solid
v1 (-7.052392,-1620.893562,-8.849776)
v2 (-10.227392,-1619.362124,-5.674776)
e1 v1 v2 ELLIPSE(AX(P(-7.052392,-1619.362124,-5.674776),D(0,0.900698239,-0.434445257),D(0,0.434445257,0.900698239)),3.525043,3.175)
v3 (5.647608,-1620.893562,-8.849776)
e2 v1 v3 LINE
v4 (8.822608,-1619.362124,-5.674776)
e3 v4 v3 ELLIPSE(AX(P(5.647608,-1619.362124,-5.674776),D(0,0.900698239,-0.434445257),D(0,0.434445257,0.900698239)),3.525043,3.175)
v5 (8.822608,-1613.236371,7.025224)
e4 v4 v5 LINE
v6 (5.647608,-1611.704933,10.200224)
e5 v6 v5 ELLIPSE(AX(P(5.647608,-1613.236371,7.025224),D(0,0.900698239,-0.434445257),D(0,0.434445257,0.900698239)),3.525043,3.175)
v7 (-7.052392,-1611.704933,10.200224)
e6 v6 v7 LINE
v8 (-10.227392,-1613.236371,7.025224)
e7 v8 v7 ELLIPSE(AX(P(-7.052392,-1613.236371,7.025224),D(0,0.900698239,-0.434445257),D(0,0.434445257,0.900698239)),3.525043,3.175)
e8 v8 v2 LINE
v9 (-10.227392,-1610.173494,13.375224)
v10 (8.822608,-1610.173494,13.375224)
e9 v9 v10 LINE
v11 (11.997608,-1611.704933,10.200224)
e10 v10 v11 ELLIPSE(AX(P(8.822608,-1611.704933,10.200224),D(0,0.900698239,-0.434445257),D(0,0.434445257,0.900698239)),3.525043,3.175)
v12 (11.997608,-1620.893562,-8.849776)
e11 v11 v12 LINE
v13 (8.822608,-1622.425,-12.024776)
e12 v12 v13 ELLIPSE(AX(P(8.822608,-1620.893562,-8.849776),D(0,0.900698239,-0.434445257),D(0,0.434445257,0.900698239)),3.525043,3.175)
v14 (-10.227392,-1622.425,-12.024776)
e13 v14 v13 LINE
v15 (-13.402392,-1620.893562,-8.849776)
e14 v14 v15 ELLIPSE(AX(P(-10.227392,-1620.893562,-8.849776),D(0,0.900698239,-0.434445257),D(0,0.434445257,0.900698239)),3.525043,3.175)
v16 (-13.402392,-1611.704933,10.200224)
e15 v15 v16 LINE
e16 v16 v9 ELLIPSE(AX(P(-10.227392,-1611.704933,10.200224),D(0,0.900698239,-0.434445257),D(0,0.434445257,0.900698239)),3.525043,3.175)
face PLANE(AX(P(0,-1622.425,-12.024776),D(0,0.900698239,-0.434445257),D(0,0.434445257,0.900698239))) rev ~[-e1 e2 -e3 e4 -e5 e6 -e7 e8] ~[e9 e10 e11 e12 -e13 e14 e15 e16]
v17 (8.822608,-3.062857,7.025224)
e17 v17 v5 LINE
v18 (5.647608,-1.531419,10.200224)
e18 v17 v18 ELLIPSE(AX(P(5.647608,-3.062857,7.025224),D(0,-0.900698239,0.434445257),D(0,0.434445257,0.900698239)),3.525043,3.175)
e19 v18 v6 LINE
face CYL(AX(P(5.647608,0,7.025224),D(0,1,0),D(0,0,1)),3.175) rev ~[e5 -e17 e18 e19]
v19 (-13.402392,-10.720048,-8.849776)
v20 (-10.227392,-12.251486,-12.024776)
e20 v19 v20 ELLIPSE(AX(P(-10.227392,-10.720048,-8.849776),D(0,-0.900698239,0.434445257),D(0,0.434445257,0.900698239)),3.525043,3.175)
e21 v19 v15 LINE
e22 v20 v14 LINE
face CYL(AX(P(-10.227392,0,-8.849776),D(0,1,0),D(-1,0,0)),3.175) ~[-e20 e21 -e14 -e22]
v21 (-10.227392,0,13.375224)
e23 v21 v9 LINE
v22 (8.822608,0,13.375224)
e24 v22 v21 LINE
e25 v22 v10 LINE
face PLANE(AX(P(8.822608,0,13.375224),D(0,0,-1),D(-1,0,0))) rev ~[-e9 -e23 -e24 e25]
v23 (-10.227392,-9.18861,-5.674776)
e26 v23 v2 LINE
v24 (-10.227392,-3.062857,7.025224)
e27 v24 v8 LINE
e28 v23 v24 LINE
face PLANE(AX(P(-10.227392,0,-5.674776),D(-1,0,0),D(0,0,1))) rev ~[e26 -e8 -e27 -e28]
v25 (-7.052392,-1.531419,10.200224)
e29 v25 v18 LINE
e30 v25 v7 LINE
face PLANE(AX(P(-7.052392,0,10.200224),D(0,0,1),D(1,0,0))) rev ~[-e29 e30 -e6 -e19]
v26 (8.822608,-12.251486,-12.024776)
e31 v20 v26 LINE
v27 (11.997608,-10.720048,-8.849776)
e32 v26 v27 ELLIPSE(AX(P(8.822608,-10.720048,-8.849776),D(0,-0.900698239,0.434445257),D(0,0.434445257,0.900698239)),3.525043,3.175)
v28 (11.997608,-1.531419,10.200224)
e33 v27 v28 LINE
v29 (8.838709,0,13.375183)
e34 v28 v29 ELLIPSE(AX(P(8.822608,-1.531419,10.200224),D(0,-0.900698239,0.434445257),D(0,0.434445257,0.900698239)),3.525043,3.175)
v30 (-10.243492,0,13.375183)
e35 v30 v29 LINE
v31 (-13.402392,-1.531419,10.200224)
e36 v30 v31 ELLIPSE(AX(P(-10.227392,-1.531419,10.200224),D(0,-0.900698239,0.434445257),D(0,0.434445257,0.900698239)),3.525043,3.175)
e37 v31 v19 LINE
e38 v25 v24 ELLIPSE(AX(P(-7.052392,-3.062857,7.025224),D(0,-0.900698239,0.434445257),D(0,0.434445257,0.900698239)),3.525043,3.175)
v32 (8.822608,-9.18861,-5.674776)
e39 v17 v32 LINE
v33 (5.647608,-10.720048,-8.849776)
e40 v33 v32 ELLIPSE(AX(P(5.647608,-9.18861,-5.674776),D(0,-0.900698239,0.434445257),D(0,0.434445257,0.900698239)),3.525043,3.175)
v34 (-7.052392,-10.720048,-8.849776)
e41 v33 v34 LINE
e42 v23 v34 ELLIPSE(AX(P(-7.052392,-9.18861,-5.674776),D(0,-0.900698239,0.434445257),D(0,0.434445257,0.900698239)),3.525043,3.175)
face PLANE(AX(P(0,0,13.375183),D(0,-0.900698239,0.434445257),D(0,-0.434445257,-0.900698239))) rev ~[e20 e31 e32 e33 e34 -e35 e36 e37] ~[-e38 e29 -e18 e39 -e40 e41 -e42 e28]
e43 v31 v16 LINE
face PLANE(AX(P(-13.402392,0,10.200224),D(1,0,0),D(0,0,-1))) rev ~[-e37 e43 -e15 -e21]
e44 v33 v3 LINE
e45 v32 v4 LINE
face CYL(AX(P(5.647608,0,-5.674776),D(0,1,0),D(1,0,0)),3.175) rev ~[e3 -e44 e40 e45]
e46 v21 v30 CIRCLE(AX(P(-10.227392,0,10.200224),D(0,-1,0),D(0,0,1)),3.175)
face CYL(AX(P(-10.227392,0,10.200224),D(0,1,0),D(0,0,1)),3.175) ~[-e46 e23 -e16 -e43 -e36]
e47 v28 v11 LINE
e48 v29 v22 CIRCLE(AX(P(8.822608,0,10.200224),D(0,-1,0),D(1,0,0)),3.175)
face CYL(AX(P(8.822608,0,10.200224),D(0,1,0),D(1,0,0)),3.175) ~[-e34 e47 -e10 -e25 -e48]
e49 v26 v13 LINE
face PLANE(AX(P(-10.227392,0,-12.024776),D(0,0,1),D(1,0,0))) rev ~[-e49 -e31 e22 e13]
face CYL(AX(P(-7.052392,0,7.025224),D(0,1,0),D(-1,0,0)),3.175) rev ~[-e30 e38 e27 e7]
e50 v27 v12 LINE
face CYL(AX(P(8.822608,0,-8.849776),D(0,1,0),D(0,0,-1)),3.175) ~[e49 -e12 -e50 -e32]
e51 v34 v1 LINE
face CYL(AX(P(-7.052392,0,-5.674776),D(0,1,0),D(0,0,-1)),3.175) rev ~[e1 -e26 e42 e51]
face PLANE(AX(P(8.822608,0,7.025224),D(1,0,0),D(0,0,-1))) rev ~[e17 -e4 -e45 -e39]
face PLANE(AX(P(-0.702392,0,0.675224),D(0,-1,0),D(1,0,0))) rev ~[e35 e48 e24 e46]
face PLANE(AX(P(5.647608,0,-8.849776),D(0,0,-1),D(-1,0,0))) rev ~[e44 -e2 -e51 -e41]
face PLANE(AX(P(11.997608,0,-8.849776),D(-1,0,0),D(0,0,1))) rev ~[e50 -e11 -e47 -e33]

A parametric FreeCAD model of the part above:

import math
import FreeCAD as App
import Part
import Sketcher
from FreeCAD import Vector
Q = App.Units.Quantity

doc = App.newDocument("Part")
body = doc.addObject("PartDesign::Body", "Body")

# Sketch on XZ plane
sketch1 = body.newObject("Sketcher::SketchObject", "Sketch")
sketch1.AttachmentSupport = (doc.getObject("XZ_Plane"), [""])
sketch1.MapMode = "FlatFace"
sketch1.addGeometry([
    Part.LineSegment(Vector(-10.2, -12, 0), Vector(8.8, -12, 0)),  # 0
    Part.ArcOfCircle(Part.Circle(Vector(8.8, -8.8, 0), Vector(0, 0, 1), 3.2), math.radians(-90), math.radians(0)),  # 1
    Part.LineSegment(Vector(12, -8.8, 0), Vector(12, 10.2, 0)),  # 2
    Part.ArcOfCircle(Part.Circle(Vector(8.8, 10.2, 0), Vector(0, 0, 1), 3.2), math.radians(0), math.radians(90)),  # 3
    Part.LineSegment(Vector(8.8, 13.4, 0), Vector(-10.2, 13.4, 0)),  # 4
    Part.ArcOfCircle(Part.Circle(Vector(-10.2, 10.2, 0), Vector(0, 0, 1), 3.2), math.radians(90), math.radians(180)),  # 5
    Part.LineSegment(Vector(-13.4, 10.2, 0), Vector(-13.4, -8.8, 0)),  # 6
    Part.ArcOfCircle(Part.Circle(Vector(-10.2, -8.8, 0), Vector(0, 0, 1), 3.2), math.radians(180), math.radians(270)),  # 7
    Part.LineSegment(Vector(8.8, 7, 0), Vector(8.8, -5.7, 0)),  # 8
    Part.ArcOfCircle(Part.Circle(Vector(5.6, -5.7, 0), Vector(0, 0, 1), 3.2), math.radians(-90), math.radians(0)),  # 9
    Part.LineSegment(Vector(5.6, -8.8, 0), Vector(-7.1, -8.8, 0)),  # 10
    Part.ArcOfCircle(Part.Circle(Vector(-7.1, -5.7, 0), Vector(0, 0, 1), 3.2), math.radians(180), math.radians(270)),  # 11
    Part.LineSegment(Vector(-10.2, -5.7, 0), Vector(-10.2, 7, 0)),  # 12
    Part.ArcOfCircle(Part.Circle(Vector(-7.1, 7, 0), Vector(0, 0, 1), 3.2), math.radians(90), math.radians(180)),  # 13
    Part.LineSegment(Vector(-7.1, 10.2, 0), Vector(5.6, 10.2, 0)),  # 14
    Part.ArcOfCircle(Part.Circle(Vector(5.6, 7, 0), Vector(0, 0, 1), 3.2), math.radians(0), math.radians(90)),  # 15
], False)
sketch1.addConstraint([
    Sketcher.Constraint("Tangent", 0, 2, 1, 1),
    Sketcher.Constraint("Tangent", 1, 2, 2, 1),
    Sketcher.Constraint("Tangent", 2, 2, 3, 1),
    Sketcher.Constraint("Tangent", 3, 2, 4, 1),
    Sketcher.Constraint("Tangent", 4, 2, 5, 1),
    Sketcher.Constraint("Tangent", 5, 2, 6, 1),
    Sketcher.Constraint("Tangent", 6, 2, 7, 1),
    Sketcher.Constraint("Tangent", 7, 2, 0, 1),
    Sketcher.Constraint("Tangent", 8, 2, 9, 2),
    Sketcher.Constraint("Tangent", 9, 1, 10, 1),
    Sketcher.Constraint("Tangent", 10, 2, 11, 2),
    Sketcher.Constraint("Tangent", 11, 1, 12, 1),
    Sketcher.Constraint("Tangent", 12, 2, 13, 2),
    Sketcher.Constraint("Tangent", 13, 1, 14, 1),
    Sketcher.Constraint("Tangent", 14, 2, 15, 2),
    Sketcher.Constraint("Tangent", 15, 1, 8, 1),
    Sketcher.Constraint("Horizontal", 0),
    Sketcher.Constraint("Vertical", 2),
    Sketcher.Constraint("Horizontal", 4),
    Sketcher.Constraint("Vertical", 6),
    Sketcher.Constraint("Vertical", 8),
    Sketcher.Constraint("Horizontal", 10),
    Sketcher.Constraint("Vertical", 12),
    Sketcher.Constraint("Horizontal", 14),
    Sketcher.Constraint("Equal", 1, 3),
    Sketcher.Constraint("Equal", 3, 5),
    Sketcher.Constraint("Equal", 5, 7),
    Sketcher.Constraint("Equal", 7, 9),
    Sketcher.Constraint("Equal", 9, 11),
    Sketcher.Constraint("Equal", 11, 13),
    Sketcher.Constraint("Equal", 13, 15),
    Sketcher.Constraint("Horizontal", 6, 2, 9, 1),
    Sketcher.Constraint("Horizontal", 5, 2, 13, 1),
    Sketcher.Constraint("Vertical", 3, 2, 8, 2),
    Sketcher.Constraint("Vertical", 7, 2, 11, 1),
    Sketcher.Constraint("Equal", 4, 2),
    Sketcher.Constraint("DistanceX", 10, 2, 10, 1, Q("0.5 in")),
    Sketcher.Constraint("Radius", 1, Q("0.125 in")),
    Sketcher.Constraint("DistanceX", -1, 1, 1, 3, 8.822608),
    Sketcher.Constraint("DistanceY", 1, 3, -1, 1, 8.849776),
])
pad1 = body.newObject("PartDesign::Pad", "Pad")
pad1.Profile = sketch1
pad1.Length = Q("63.875 in")

# Sketch on YZ plane
sketch2 = body.newObject("Sketcher::SketchObject", "Sketch001")
sketch2.AttachmentSupport = (doc.getObject("YZ_Plane"), [""])
sketch2.MapMode = "FlatFace"
sketch2.addGeometry([
    Part.LineSegment(Vector(0, -14, 0), Vector(0, 13, 0)),
    Part.LineSegment(Vector(0, 13, 0), Vector(-13, -14, 0)),
    Part.LineSegment(Vector(-13, -14, 0), Vector(0, -14, 0)),
], False)
sketch2.addConstraint([
    Sketcher.Constraint("Coincident", 0, 2, 1, 1),
    Sketcher.Constraint("Coincident", 1, 2, 2, 1),
    Sketcher.Constraint("Coincident", 2, 2, 0, 1),
    Sketcher.Constraint("Vertical", 0),
    Sketcher.Constraint("Horizontal", 2),
    Sketcher.Constraint("PointOnObject", 0, 2, -2),
    Sketcher.Constraint("Angle", 1, Q("-115.75 deg")),
    Sketcher.Constraint("DistanceY", 0, 1, 0, 2, 26.888712),
    Sketcher.Constraint("DistanceY", 1, 2, -1, 1, 13.513529),
])
pocket1 = body.newObject("PartDesign::Pocket", "Pocket")
pocket1.Profile = sketch2
pocket1.Length = Q("3 in")
pocket1.Midplane = True

# Sketch on YZ plane
sketch3 = body.newObject("Sketcher::SketchObject", "Sketch002")
sketch3.AttachmentSupport = (doc.getObject("YZ_Plane"), [""])
sketch3.MapMode = "FlatFace"
sketch3.addGeometry([
    Part.LineSegment(Vector(-1622, 15, 0), Vector(-1622, -12, 0)),
    Part.LineSegment(Vector(-1622, -12, 0), Vector(-1609, 15, 0)),
    Part.LineSegment(Vector(-1609, 15, 0), Vector(-1622, 15, 0)),
], False)
sketch3.addConstraint([
    Sketcher.Constraint("Coincident", 0, 2, 1, 1),
    Sketcher.Constraint("Coincident", 1, 2, 2, 1),
    Sketcher.Constraint("Coincident", 2, 2, 0, 1),
    Sketcher.Constraint("Vertical", 0),
    Sketcher.Constraint("Horizontal", 2),
    Sketcher.Constraint("Angle", 1, Q("64.25 deg")),
    Sketcher.Constraint("DistanceX", 0, 2, -1, 1, Q("63.875 in")),
    Sketcher.Constraint("DistanceY", 0, 2, 0, 1, 26.888712),
    Sketcher.Constraint("DistanceY", 0, 2, -1, 1, 12.024776),
])
pocket2 = body.newObject("PartDesign::Pocket", "Pocket001")
pocket2.Profile = sketch3
pocket2.Length = Q("2 in")
pocket2.Midplane = True

doc.recompute()
